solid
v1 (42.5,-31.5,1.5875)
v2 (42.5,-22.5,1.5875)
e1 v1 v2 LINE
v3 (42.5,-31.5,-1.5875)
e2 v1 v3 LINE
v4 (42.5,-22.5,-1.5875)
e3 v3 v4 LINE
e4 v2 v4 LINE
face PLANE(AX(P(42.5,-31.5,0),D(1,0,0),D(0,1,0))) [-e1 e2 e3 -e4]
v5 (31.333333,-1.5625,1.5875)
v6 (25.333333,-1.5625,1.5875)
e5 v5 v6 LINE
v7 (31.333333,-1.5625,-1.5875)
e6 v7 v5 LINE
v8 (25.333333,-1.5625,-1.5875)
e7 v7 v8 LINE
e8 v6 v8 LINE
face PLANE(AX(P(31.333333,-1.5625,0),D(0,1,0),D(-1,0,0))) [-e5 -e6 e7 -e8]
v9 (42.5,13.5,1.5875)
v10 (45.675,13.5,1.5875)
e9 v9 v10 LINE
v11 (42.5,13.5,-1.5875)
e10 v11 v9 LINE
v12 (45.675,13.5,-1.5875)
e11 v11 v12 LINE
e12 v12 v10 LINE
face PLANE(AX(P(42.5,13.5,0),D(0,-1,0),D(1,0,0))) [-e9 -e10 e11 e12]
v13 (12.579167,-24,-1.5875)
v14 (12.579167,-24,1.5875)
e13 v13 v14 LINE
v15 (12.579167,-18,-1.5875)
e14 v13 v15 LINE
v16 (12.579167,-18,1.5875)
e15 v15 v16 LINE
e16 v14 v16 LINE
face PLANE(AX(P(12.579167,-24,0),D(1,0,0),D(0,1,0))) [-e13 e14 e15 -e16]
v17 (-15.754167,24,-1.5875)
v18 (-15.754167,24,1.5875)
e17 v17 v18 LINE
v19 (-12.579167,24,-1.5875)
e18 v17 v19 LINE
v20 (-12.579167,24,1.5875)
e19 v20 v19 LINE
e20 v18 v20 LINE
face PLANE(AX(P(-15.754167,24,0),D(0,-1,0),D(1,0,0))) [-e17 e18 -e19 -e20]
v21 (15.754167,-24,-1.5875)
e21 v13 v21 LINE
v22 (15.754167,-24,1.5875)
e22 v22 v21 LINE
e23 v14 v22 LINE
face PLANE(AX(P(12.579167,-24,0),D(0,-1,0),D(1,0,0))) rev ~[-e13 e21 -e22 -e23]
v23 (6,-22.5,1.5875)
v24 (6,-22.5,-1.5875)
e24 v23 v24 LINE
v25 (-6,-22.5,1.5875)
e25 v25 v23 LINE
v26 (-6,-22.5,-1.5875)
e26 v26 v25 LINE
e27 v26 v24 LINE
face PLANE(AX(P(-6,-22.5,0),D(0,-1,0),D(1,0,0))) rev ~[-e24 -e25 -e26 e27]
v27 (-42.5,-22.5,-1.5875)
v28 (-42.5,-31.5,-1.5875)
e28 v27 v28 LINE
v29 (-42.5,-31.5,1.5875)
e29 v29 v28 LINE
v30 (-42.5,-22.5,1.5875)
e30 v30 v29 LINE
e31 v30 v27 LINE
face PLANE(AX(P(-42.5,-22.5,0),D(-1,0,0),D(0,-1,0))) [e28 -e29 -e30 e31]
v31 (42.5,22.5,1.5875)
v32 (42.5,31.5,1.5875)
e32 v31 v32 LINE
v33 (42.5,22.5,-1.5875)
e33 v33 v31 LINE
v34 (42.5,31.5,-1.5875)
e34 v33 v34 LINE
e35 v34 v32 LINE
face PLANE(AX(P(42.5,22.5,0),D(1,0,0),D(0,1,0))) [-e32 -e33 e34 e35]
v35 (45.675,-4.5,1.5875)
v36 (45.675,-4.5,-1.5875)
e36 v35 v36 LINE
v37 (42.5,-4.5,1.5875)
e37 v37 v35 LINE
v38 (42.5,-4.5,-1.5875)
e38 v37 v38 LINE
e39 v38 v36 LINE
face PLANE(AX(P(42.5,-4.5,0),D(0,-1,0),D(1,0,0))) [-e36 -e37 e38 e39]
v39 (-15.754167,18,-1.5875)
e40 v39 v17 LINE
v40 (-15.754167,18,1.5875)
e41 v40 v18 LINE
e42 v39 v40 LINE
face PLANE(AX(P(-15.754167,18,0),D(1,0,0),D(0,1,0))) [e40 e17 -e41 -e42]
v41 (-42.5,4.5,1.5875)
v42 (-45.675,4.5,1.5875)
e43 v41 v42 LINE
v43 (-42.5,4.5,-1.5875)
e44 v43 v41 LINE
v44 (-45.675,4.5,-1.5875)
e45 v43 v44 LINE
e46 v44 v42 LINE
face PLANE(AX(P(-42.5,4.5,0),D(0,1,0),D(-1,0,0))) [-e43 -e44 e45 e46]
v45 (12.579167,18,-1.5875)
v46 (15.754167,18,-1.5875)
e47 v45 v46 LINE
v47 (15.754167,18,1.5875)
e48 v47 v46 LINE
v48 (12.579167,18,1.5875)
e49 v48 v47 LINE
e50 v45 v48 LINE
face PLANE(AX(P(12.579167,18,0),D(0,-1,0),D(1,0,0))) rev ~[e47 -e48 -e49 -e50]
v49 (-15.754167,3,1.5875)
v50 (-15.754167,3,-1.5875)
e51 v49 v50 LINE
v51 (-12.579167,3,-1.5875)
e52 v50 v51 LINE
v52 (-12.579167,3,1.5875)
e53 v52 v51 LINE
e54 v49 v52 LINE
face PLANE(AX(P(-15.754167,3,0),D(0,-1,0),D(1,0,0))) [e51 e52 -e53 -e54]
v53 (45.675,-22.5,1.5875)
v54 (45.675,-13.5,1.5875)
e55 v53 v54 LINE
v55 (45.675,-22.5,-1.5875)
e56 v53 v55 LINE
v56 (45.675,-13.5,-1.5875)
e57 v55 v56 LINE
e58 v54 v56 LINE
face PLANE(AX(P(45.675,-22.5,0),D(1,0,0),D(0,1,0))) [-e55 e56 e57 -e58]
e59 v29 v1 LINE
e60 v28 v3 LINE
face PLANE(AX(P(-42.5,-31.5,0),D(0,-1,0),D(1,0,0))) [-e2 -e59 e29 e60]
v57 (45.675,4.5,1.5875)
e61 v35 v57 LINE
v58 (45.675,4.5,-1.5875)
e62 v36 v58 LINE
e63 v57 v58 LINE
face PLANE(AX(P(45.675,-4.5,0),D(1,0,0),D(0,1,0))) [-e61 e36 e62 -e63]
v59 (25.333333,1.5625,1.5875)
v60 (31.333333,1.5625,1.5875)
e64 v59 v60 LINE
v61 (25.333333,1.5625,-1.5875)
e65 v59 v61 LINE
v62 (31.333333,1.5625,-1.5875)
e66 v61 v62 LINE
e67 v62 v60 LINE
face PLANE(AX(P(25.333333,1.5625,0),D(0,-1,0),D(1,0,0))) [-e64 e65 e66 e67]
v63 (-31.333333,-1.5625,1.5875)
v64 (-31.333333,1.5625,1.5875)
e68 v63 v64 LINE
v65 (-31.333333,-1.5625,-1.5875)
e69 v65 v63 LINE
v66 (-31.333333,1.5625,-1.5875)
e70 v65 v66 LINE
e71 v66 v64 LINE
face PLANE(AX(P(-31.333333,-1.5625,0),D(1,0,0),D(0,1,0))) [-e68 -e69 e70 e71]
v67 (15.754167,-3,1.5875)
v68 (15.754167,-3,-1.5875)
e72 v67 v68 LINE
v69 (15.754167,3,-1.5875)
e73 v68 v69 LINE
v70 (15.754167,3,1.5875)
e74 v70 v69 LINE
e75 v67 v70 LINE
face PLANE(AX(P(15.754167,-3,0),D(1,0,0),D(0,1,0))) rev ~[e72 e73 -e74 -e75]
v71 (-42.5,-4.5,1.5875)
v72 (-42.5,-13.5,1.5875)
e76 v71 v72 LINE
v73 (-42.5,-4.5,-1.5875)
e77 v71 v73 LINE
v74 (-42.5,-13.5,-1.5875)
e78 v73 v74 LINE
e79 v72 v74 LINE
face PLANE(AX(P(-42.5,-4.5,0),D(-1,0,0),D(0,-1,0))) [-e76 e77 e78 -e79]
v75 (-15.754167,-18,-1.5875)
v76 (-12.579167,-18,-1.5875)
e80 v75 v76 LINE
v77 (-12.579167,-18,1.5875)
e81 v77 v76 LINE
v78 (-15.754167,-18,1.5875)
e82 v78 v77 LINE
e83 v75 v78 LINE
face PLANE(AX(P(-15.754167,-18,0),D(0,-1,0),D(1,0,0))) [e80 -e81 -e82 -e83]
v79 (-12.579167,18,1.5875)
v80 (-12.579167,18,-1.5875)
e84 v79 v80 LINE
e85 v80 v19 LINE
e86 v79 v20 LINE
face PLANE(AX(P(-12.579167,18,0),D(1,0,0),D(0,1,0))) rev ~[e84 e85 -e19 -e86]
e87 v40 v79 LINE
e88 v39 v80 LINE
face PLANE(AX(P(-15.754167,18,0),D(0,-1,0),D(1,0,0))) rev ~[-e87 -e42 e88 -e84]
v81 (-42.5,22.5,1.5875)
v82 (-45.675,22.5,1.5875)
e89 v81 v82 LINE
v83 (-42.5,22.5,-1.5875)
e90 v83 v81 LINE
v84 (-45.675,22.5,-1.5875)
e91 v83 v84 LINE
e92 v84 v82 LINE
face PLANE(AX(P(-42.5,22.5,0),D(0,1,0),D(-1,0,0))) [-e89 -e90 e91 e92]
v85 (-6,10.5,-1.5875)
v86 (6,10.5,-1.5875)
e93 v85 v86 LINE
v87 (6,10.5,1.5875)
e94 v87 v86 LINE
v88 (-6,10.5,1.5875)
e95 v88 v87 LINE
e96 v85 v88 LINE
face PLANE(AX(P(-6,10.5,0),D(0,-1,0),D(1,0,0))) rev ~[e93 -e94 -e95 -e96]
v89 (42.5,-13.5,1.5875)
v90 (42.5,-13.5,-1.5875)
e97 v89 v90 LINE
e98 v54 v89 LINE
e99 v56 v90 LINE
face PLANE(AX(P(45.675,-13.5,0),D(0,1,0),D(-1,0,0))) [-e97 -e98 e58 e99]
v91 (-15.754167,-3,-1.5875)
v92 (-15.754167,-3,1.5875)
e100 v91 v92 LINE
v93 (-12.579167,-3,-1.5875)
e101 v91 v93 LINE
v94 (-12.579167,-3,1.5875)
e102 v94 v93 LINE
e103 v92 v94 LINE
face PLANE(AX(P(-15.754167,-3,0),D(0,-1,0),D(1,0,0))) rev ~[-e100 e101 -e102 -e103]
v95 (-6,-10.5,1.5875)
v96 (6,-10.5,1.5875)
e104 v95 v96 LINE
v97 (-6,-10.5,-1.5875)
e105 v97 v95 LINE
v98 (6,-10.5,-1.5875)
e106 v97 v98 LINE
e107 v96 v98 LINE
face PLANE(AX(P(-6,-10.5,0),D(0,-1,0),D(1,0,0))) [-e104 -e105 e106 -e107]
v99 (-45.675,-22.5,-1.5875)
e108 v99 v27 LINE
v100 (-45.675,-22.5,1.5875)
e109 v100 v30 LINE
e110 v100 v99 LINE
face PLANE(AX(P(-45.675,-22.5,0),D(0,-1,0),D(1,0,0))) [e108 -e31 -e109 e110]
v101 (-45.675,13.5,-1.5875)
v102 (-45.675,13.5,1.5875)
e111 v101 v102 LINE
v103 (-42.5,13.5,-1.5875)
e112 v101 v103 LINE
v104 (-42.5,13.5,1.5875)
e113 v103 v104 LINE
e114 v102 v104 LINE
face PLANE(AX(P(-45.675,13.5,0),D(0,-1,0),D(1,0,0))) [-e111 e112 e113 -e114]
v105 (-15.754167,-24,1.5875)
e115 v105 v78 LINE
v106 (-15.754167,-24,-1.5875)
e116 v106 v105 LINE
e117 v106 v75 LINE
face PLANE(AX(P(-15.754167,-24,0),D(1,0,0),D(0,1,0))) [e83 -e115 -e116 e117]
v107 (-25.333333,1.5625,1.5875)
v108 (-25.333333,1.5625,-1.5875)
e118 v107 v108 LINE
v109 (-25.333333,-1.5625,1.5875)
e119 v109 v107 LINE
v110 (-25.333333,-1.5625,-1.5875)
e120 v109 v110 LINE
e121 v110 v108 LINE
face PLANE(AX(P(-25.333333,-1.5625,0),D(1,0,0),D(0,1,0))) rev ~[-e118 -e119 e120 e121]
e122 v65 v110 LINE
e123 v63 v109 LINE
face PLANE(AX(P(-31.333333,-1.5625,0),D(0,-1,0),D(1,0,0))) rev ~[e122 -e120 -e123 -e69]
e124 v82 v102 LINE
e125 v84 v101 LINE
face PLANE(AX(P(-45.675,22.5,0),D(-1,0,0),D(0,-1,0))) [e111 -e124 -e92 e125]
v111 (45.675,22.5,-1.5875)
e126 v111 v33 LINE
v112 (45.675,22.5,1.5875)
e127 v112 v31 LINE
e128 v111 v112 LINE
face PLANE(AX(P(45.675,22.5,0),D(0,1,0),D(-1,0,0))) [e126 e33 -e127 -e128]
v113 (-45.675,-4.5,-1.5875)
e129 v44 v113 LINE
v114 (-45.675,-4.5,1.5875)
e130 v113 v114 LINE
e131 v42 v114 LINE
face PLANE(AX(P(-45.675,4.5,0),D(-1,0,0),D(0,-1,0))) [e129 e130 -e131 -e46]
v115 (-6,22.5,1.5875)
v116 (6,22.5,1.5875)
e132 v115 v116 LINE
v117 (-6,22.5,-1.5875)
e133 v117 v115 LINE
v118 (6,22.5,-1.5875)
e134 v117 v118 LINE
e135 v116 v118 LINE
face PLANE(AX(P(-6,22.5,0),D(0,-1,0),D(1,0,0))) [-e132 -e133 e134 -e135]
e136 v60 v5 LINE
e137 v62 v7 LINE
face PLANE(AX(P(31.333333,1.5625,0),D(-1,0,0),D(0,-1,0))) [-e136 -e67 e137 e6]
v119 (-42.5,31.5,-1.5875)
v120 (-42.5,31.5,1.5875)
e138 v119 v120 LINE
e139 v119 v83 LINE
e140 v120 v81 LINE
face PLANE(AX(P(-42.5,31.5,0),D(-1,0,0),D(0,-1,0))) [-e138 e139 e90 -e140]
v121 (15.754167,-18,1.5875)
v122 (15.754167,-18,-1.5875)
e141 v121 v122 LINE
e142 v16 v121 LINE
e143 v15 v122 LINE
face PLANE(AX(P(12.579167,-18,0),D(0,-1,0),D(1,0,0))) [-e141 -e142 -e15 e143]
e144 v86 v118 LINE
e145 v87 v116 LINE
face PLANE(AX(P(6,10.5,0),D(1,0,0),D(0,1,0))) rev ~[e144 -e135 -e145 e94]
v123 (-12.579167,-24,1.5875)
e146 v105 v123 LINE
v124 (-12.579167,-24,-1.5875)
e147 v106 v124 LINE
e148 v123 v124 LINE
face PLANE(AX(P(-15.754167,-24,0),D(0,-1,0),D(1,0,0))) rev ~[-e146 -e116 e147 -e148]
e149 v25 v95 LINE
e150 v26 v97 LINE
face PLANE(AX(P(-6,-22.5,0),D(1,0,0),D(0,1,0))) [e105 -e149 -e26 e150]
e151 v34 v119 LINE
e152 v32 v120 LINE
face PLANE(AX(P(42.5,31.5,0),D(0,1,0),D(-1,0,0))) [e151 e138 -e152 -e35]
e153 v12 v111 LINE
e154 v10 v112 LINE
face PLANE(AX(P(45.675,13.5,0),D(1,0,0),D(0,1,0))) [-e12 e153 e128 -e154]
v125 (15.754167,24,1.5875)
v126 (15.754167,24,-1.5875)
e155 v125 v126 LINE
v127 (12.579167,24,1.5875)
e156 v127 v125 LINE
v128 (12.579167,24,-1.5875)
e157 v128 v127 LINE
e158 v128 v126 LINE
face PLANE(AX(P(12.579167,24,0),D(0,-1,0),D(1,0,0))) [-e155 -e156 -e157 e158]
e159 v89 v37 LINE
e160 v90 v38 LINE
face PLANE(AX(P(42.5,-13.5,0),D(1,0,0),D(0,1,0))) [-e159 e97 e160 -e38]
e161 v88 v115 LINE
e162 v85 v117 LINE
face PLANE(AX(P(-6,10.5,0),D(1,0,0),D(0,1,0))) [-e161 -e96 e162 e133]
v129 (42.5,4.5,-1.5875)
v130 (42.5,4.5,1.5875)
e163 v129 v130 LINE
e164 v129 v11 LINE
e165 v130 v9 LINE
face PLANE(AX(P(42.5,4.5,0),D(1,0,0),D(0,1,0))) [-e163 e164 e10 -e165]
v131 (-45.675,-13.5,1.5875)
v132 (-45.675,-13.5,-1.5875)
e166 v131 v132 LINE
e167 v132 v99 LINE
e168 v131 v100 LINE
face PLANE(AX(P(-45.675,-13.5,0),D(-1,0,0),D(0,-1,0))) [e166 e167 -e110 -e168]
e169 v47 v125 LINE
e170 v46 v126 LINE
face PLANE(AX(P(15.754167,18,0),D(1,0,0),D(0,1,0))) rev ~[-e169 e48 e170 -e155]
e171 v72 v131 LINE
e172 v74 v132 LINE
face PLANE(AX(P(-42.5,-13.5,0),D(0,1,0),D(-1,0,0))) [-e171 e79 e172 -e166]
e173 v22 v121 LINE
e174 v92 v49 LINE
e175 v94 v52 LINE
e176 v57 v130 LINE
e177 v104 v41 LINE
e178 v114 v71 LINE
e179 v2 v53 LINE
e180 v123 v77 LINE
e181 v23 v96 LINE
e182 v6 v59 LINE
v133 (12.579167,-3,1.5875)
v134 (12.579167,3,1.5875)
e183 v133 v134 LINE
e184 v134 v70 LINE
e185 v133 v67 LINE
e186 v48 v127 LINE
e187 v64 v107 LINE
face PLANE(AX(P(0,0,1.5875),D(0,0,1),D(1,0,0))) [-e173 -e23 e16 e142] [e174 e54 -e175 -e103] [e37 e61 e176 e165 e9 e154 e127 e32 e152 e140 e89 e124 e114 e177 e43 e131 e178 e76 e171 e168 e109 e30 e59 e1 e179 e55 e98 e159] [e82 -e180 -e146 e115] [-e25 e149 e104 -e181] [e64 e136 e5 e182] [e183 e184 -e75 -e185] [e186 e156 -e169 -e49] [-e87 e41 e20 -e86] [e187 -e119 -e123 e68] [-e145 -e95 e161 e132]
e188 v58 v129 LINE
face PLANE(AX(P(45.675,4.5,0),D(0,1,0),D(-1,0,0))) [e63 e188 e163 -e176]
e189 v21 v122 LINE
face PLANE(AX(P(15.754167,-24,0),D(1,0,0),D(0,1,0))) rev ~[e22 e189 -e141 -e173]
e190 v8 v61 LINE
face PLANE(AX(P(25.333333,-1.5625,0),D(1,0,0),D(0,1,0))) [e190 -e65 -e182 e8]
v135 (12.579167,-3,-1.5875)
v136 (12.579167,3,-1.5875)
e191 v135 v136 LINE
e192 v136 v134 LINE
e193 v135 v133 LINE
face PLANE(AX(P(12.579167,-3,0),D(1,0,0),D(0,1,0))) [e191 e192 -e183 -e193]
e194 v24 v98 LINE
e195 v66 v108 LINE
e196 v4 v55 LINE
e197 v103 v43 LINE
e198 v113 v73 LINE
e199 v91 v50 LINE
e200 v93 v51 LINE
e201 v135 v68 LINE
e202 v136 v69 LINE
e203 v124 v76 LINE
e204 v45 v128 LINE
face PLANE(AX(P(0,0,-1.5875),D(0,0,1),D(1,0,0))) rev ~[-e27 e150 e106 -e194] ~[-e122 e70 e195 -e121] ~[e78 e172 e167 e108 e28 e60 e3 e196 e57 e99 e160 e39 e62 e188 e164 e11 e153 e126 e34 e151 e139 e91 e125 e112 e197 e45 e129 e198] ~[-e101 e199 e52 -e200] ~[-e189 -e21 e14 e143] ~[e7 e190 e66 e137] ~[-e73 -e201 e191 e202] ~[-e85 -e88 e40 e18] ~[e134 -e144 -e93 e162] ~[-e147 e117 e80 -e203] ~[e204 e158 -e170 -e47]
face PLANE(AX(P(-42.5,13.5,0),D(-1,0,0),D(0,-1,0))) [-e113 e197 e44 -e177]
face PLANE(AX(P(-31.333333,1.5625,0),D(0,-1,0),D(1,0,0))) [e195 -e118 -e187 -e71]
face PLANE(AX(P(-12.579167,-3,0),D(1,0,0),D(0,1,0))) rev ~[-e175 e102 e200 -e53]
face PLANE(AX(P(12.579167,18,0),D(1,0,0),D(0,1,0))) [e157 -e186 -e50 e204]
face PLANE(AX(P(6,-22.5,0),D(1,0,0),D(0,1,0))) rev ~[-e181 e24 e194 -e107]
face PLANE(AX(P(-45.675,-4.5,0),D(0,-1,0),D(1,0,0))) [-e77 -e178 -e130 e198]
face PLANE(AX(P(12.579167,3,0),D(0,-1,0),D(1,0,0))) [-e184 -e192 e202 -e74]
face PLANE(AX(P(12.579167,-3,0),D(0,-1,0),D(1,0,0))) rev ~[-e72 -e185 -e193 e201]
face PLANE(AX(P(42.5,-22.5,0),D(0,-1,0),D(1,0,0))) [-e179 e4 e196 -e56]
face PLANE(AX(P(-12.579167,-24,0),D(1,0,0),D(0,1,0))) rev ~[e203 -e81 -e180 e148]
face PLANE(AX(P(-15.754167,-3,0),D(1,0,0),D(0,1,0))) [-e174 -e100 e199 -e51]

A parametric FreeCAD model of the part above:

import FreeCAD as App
import Part
import Sketcher


def add_polygon(sketch, points):
    """Adds a closed chain of lines whose ends are joined by coincident constraints."""
    first, n = sketch.GeometryCount, len(points)
    for a, b in zip(points, points[1:] + points[:1]):
        sketch.addGeometry(Part.LineSegment(App.Vector(*a, 0), App.Vector(*b, 0)), False)
    for i in range(n):
        sketch.addConstraint(Sketcher.Constraint("Coincident", first + i, 2, first + (i + 1) % n, 1))

doc = App.newDocument("Part")
body = doc.addObject("PartDesign::Body", "Body")

# Sketch on XY plane
sketch1 = body.newObject("Sketcher::SketchObject", "Sketch")
sketch1.AttachmentSupport = (doc.getObject("XY_Plane"), [""])
sketch1.MapMode = "FlatFace"
add_polygon(sketch1, [(45.7, 4.5), (42.5, 4.5), (42.5, 13.5), (45.7, 13.5), (45.7, 22.5), (42.5, 22.5), (42.5, 31.5), (-42.5, 31.5), (-42.5, 22.5), (-45.7, 22.5), (-45.7, 13.5), (-42.5, 13.5), (-42.5, 4.5), (-45.7, 4.5), (-45.7, -4.5), (-42.5, -4.5), (-42.5, -13.5), (-45.7, -13.5), (-45.7, -22.5), (-42.5, -22.5), (-42.5, -31.5), (42.5, -31.5), (42.5, -22.5), (45.7, -22.5), (45.7, -13.5), (42.5, -13.5), (42.5, -4.5), (45.7, -4.5)])  # lines 0-27
add_polygon(sketch1, [(-12.6, -24), (-15.8, -24), (-15.8, -18), (-12.6, -18)])  # lines 28-31
add_polygon(sketch1, [(15.8, -24), (12.6, -24), (12.6, -18), (15.8, -18)])  # lines 32-35
add_polygon(sketch1, [(6, -22.5), (-6, -22.5), (-6, -10.5), (6, -10.5)])  # lines 36-39
add_polygon(sketch1, [(-25.3, -1.6), (-31.3, -1.6), (-31.3, 1.6), (-25.3, 1.6)])  # lines 40-43
add_polygon(sketch1, [(-12.6, -3), (-15.8, -3), (-15.8, 3), (-12.6, 3)])  # lines 44-47
add_polygon(sketch1, [(-12.6, 18), (-15.8, 18), (-15.8, 24), (-12.6, 24)])  # lines 48-51
add_polygon(sketch1, [(15.8, -3), (12.6, -3), (12.6, 3), (15.8, 3)])  # lines 52-55
add_polygon(sketch1, [(25.3, 1.6), (31.3, 1.6), (31.3, -1.6), (25.3, -1.6)])  # lines 56-59
add_polygon(sketch1, [(6, 10.5), (-6, 10.5), (-6, 22.5), (6, 22.5)])  # lines 60-63
add_polygon(sketch1, [(15.8, 18), (12.6, 18), (12.6, 24), (15.8, 24)])  # lines 64-67
sketch1.addConstraint(Sketcher.Constraint("Horizontal", 0))
sketch1.addConstraint(Sketcher.Constraint("Vertical", 1))
sketch1.addConstraint(Sketcher.Constraint("Horizontal", 2))
sketch1.addConstraint(Sketcher.Constraint("Vertical", 3))
sketch1.addConstraint(Sketcher.Constraint("Horizontal", 4))
sketch1.addConstraint(Sketcher.Constraint("Vertical", 5))
sketch1.addConstraint(Sketcher.Constraint("Horizontal", 6))
sketch1.addConstraint(Sketcher.Constraint("Vertical", 7))
sketch1.addConstraint(Sketcher.Constraint("Horizontal", 8))
sketch1.addConstraint(Sketcher.Constraint("Vertical", 9))
sketch1.addConstraint(Sketcher.Constraint("Horizontal", 10))
sketch1.addConstraint(Sketcher.Constraint("Vertical", 11))
sketch1.addConstraint(Sketcher.Constraint("Horizontal", 12))
sketch1.addConstraint(Sketcher.Constraint("Vertical", 13))
sketch1.addConstraint(Sketcher.Constraint("Horizontal", 14))
sketch1.addConstraint(Sketcher.Constraint("Vertical", 15))
sketch1.addConstraint(Sketcher.Constraint("Horizontal", 16))
sketch1.addConstraint(Sketcher.Constraint("Vertical", 17))
sketch1.addConstraint(Sketcher.Constraint("Horizontal", 18))
sketch1.addConstraint(Sketcher.Constraint("Vertical", 19))
sketch1.addConstraint(Sketcher.Constraint("Horizontal", 20))
sketch1.addConstraint(Sketcher.Constraint("Vertical", 21))
sketch1.addConstraint(Sketcher.Constraint("Horizontal", 22))
sketch1.addConstraint(Sketcher.Constraint("Vertical", 23))
sketch1.addConstraint(Sketcher.Constraint("Horizontal", 24))
sketch1.addConstraint(Sketcher.Constraint("Vertical", 25))
sketch1.addConstraint(Sketcher.Constraint("Horizontal", 26))
sketch1.addConstraint(Sketcher.Constraint("Vertical", 27))
sketch1.addConstraint(Sketcher.Constraint("Horizontal", 28))
sketch1.addConstraint(Sketcher.Constraint("Vertical", 29))
sketch1.addConstraint(Sketcher.Constraint("Horizontal", 30))
sketch1.addConstraint(Sketcher.Constraint("Vertical", 31))
sketch1.addConstraint(Sketcher.Constraint("Horizontal", 32))
sketch1.addConstraint(Sketcher.Constraint("Vertical", 33))
sketch1.addConstraint(Sketcher.Constraint("Horizontal", 34))
sketch1.addConstraint(Sketcher.Constraint("Vertical", 35))
sketch1.addConstraint(Sketcher.Constraint("Horizontal", 36))
sketch1.addConstraint(Sketcher.Constraint("Vertical", 37))
sketch1.addConstraint(Sketcher.Constraint("Horizontal", 38))
sketch1.addConstraint(Sketcher.Constraint("Vertical", 39))
sketch1.addConstraint(Sketcher.Constraint("Horizontal", 40))
sketch1.addConstraint(Sketcher.Constraint("Vertical", 41))
sketch1.addConstraint(Sketcher.Constraint("Horizontal", 42))
sketch1.addConstraint(Sketcher.Constraint("Vertical", 43))
sketch1.addConstraint(Sketcher.Constraint("Horizontal", 44))
sketch1.addConstraint(Sketcher.Constraint("Vertical", 45))
sketch1.addConstraint(Sketcher.Constraint("Horizontal", 46))
sketch1.addConstraint(Sketcher.Constraint("Vertical", 47))
sketch1.addConstraint(Sketcher.Constraint("Horizontal", 48))
sketch1.addConstraint(Sketcher.Constraint("Vertical", 49))
sketch1.addConstraint(Sketcher.Constraint("Horizontal", 50))
sketch1.addConstraint(Sketcher.Constraint("Vertical", 51))
sketch1.addConstraint(Sketcher.Constraint("Horizontal", 52))
sketch1.addConstraint(Sketcher.Constraint("Vertical", 53))
sketch1.addConstraint(Sketcher.Constraint("Horizontal", 54))
sketch1.addConstraint(Sketcher.Constraint("Vertical", 55))
sketch1.addConstraint(Sketcher.Constraint("Horizontal", 56))
sketch1.addConstraint(Sketcher.Constraint("Vertical", 57))
sketch1.addConstraint(Sketcher.Constraint("Horizontal", 58))
sketch1.addConstraint(Sketcher.Constraint("Vertical", 59))
sketch1.addConstraint(Sketcher.Constraint("Horizontal", 60))
sketch1.addConstraint(Sketcher.Constraint("Vertical", 61))
sketch1.addConstraint(Sketcher.Constraint("Horizontal", 62))
sketch1.addConstraint(Sketcher.Constraint("Vertical", 63))
sketch1.addConstraint(Sketcher.Constraint("Horizontal", 64))
sketch1.addConstraint(Sketcher.Constraint("Vertical", 65))
sketch1.addConstraint(Sketcher.Constraint("Horizontal", 66))
sketch1.addConstraint(Sketcher.Constraint("Vertical", 67))
sketch1.addConstraint(Sketcher.Constraint("Symmetric", 0, 2, 14, 2, -1, 1))
sketch1.addConstraint(Sketcher.Constraint("Symmetric", 2, 2, 16, 2, -1, 1))
sketch1.addConstraint(Sketcher.Constraint("Symmetric", 4, 2, 18, 2, -1, 1))
sketch1.addConstraint(Sketcher.Constraint("Symmetric", 6, 2, 20, 2, -1, 1))
sketch1.addConstraint(Sketcher.Constraint("Symmetric", 8, 2, 22, 2, -1, 1))
sketch1.addConstraint(Sketcher.Constraint("Symmetric", 10, 2, 24, 2, -1, 1))
sketch1.addConstraint(Sketcher.Constraint("Symmetric", 12, 2, 26, 2, -1, 1))
sketch1.addConstraint(Sketcher.Constraint("Symmetric", 34, 2, 48, 2, -1, 1))
sketch1.addConstraint(Sketcher.Constraint("Symmetric", 32, 2, 50, 2, -1, 1))
sketch1.addConstraint(Sketcher.Constraint("Symmetric", 46, 2, 52, 2, -1, 1))
sketch1.addConstraint(Sketcher.Constraint("Symmetric", 44, 2, 54, 2, -1, 1))
sketch1.addConstraint(Sketcher.Constraint("Symmetric", 40, 2, 56, 2, -1, 1))
sketch1.addConstraint(Sketcher.Constraint("Symmetric", 42, 2, 58, 2, -1, 1))
sketch1.addConstraint(Sketcher.Constraint("Symmetric", 38, 2, 60, 2, -1, 1))
sketch1.addConstraint(Sketcher.Constraint("Symmetric", 36, 2, 62, 2, -1, 1))
sketch1.addConstraint(Sketcher.Constraint("Symmetric", 30, 2, 64, 2, -1, 1))
sketch1.addConstraint(Sketcher.Constraint("Symmetric", 28, 2, 66, 2, -1, 1))
sketch1.addConstraint(Sketcher.Constraint("Symmetric", 4, 2, 7, 2, -2))
sketch1.addConstraint(Sketcher.Constraint("Symmetric", 2, 2, 9, 2, -2))
sketch1.addConstraint(Sketcher.Constraint("Symmetric", 0, 2, 11, 2, -2))
sketch1.addConstraint(Sketcher.Constraint("Symmetric", 31, 2, 32, 2, -2))
sketch1.addConstraint(Sketcher.Constraint("Symmetric", 29, 2, 34, 2, -2))
sketch1.addConstraint(Sketcher.Constraint("Horizontal", 22, 2, 36, 2))
sketch1.addConstraint(Sketcher.Constraint("Horizontal", 47, 2, 52, 2))
sketch1.addConstraint(Sketcher.Constraint("Horizontal", 42, 2, 56, 2))
sketch1.addConstraint(Sketcher.Constraint("Vertical", 1, 2, 4, 2))
sketch1.addConstraint(Sketcher.Constraint("Vertical", 9, 2, 12, 2))
sketch1.addConstraint(Sketcher.Constraint("Vertical", 29, 2, 44, 2))
sketch1.addConstraint(Sketcher.Constraint("Vertical", 31, 2, 46, 2))
sketch1.addConstraint(Sketcher.Constraint("Vertical", 37, 2, 60, 2))
sketch1.addConstraint(Sketcher.Constraint("Equal", 26, 28))
sketch1.addConstraint(Sketcher.Constraint("Equal", 1, 3))
sketch1.addConstraint(Sketcher.Constraint("Equal", 3, 5))
sketch1.addConstraint(Sketcher.Constraint("Equal", 11, 13))
sketch1.addConstraint(Sketcher.Constraint("Equal", 58, 29))
sketch1.addConstraint(Sketcher.Constraint("Equal", 62, 37))
sketch1.addConstraint(Sketcher.Constraint("Equal", 35, 45))
sketch1.addConstraint(Sketcher.Constraint("DistanceX", 6, 2, 6, 1, 85.0))
sketch1.addConstraint(Sketcher.Constraint("DistanceX", 36, 2, 36, 1, 12.0))
sketch1.addConstraint(Sketcher.Constraint("DistanceX", 40, 2, 40, 1, 6.0))
sketch1.addConstraint(Sketcher.Constraint("DistanceY", 1, 1, 1, 2, 9.0))
sketch1.addConstraint(Sketcher.Constraint("DistanceY", 28, 2, -1, 1, 24.0))
sketch1.addConstraint(Sketcher.Constraint("DistanceX", 0, 2, 0, 1, 3.175))
sketch1.addConstraint(Sketcher.Constraint("DistanceY", 41, 1, 41, 2, 3.125))
sketch1.addConstraint(Sketcher.Constraint("DistanceX", 28, 2, -1, 1, 15.754167))
sketch1.addConstraint(Sketcher.Constraint("DistanceX", 40, 2, -1, 1, 31.333333))
pad1 = body.newObject("PartDesign::Pad", "Pad")
pad1.Profile = sketch1
pad1.Length = 3.175
pad1.Midplane = True

doc.recompute()
